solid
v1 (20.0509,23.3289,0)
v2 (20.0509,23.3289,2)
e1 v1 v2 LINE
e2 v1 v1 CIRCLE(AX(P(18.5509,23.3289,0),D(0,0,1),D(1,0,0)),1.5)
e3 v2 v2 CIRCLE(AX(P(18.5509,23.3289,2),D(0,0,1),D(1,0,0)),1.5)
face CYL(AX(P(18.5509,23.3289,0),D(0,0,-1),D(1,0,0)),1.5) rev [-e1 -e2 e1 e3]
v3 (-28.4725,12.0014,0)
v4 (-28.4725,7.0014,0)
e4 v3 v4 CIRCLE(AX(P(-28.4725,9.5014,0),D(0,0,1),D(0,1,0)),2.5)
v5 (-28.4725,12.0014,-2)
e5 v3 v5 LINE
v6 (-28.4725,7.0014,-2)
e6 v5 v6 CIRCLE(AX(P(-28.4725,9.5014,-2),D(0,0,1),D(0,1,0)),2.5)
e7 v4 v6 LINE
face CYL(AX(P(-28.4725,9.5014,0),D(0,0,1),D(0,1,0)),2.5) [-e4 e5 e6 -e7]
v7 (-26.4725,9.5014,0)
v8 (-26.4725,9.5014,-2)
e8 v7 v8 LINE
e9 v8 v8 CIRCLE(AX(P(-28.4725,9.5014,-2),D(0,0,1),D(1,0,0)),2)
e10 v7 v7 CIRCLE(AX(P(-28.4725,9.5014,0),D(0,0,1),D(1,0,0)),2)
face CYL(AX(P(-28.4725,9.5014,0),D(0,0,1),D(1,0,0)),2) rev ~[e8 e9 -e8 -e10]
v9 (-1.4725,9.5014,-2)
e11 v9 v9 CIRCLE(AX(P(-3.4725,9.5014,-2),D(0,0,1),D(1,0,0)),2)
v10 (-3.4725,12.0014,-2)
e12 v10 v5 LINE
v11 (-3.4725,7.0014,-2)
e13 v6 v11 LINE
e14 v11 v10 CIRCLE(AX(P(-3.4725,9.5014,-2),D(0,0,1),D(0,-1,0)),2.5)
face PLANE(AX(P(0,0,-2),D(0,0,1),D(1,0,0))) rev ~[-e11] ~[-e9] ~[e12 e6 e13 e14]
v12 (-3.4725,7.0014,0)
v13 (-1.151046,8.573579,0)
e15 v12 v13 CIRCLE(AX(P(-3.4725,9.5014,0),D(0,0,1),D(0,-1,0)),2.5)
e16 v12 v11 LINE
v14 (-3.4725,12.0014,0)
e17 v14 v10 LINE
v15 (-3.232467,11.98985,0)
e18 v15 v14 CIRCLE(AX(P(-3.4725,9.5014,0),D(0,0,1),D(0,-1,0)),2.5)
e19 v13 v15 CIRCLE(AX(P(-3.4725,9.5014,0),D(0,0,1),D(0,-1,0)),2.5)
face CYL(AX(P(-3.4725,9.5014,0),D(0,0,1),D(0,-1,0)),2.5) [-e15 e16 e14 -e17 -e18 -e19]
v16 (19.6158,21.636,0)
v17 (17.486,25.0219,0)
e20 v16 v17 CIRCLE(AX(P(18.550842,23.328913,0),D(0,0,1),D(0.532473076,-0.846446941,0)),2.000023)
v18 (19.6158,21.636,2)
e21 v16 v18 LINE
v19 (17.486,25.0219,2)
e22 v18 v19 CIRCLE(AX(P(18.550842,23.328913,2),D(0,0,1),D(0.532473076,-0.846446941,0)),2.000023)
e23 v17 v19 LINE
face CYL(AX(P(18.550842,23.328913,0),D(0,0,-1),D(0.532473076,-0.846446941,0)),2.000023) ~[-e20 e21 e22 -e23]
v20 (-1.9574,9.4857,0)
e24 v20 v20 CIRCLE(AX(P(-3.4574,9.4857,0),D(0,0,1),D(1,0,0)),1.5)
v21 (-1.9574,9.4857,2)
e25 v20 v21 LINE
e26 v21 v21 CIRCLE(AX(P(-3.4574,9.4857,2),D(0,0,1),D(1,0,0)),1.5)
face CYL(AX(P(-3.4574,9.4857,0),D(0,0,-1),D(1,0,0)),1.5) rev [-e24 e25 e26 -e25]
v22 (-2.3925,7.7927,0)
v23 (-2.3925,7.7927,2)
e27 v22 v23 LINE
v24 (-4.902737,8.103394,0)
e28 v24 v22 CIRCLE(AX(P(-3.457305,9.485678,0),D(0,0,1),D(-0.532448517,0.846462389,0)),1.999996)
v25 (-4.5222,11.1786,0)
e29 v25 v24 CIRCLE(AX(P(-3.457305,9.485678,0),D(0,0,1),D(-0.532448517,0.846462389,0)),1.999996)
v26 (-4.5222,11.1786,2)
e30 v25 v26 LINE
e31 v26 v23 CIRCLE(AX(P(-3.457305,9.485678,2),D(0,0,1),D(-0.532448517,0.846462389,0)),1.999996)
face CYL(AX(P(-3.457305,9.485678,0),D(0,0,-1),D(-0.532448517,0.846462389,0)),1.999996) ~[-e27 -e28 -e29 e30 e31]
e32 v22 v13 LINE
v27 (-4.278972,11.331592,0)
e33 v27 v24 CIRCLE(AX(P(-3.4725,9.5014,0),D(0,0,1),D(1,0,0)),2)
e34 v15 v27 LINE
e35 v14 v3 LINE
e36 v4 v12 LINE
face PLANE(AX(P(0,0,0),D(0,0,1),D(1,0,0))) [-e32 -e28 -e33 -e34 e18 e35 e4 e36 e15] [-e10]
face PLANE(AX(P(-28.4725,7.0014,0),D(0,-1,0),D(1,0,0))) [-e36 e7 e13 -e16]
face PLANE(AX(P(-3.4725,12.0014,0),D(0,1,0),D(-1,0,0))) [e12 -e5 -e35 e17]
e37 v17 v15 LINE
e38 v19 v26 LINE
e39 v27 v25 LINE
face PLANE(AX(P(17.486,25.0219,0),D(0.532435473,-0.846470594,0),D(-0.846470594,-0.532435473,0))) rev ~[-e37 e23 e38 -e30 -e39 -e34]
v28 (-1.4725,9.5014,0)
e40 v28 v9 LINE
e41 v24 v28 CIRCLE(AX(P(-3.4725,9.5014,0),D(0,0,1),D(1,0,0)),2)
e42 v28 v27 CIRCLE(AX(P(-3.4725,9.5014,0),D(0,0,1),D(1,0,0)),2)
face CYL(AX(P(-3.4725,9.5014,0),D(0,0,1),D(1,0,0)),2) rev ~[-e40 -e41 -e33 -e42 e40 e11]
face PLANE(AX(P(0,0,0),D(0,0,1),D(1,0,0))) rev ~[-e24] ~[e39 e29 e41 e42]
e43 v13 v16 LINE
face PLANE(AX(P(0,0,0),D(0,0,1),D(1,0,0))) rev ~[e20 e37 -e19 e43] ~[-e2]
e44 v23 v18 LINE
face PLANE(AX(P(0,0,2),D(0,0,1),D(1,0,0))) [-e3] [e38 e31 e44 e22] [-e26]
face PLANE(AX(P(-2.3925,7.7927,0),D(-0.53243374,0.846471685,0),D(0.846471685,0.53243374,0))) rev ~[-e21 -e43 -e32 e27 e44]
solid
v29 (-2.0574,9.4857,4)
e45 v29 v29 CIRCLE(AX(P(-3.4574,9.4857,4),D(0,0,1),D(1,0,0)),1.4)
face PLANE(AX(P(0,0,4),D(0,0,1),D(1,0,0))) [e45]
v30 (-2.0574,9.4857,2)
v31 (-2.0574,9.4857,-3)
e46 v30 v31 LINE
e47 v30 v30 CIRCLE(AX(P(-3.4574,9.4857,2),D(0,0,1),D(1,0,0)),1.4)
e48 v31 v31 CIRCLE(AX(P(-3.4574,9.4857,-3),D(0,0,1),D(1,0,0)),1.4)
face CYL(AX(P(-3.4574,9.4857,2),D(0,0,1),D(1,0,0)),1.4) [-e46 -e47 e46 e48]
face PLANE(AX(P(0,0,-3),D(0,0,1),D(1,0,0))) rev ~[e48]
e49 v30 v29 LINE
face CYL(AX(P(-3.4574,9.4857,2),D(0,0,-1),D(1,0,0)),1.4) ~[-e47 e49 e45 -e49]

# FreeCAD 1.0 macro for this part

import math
import FreeCAD as App
import Part
import Sketcher
from FreeCAD import Vector
Q = App.Units.Quantity

doc = App.newDocument("Part")
body = doc.addObject("PartDesign::Body", "Body")
body.AllowCompound = True

# Sketch on XY plane
sketch1 = body.newObject("Sketcher::SketchObject", "Sketch")
sketch1.AttachmentSupport = (doc.getObject("XY_Plane"), [""])
sketch1.MapMode = "FlatFace"
sketch1.addGeometry(Part.ArcOfCircle(Part.Circle(Vector(-28.4725, 9.5014, 0), Vector(0, 0, 1), 2.5), math.radians(90), math.radians(270)), False)
sketch1.addGeometry(Part.LineSegment(Vector(-28.4725, 7.0014, 0), Vector(-3.4725, 7.0014, 0)), False)
sketch1.addGeometry(Part.ArcOfCircle(Part.Circle(Vector(-3.4725, 9.5014, 0), Vector(0, 0, 1), 2.5), math.radians(-90), math.radians(90)), False)
sketch1.addGeometry(Part.LineSegment(Vector(-3.4725, 12.0014, 0), Vector(-28.4725, 12.0014, 0)), False)
sketch1.addGeometry(Part.Circle(Vector(-28.4725, 9.5014, 0), Vector(0, 0, 1), 2), False)
sketch1.addGeometry(Part.Circle(Vector(-3.4725, 9.5014, 0), Vector(0, 0, 1), 2), False)
sketch1.addConstraint(Sketcher.Constraint("Tangent", 0, 2, 1, 1))
sketch1.addConstraint(Sketcher.Constraint("Tangent", 1, 2, 2, 1))
sketch1.addConstraint(Sketcher.Constraint("Tangent", 2, 2, 3, 1))
sketch1.addConstraint(Sketcher.Constraint("Tangent", 3, 2, 0, 1))
sketch1.addConstraint(Sketcher.Constraint("Horizontal", 1))
sketch1.addConstraint(Sketcher.Constraint("Horizontal", 3))
sketch1.addConstraint(Sketcher.Constraint("Coincident", 4, 3, 0, 3))
sketch1.addConstraint(Sketcher.Constraint("Coincident", 5, 3, 2, 3))
sketch1.addConstraint(Sketcher.Constraint("Equal", 4, 5))
sketch1.addConstraint(Sketcher.Constraint("Diameter", 4, 4.0))
sketch1.addConstraint(Sketcher.Constraint("Radius", 0, 2.5))
sketch1.addConstraint(Sketcher.Constraint("DistanceX", 1, 1, 1, 2, 25.0))
sketch1.addConstraint(Sketcher.Constraint("DistanceX", 0, 3, -1, 1, 28.4725))
sketch1.addConstraint(Sketcher.Constraint("DistanceY", -1, 1, 0, 3, 9.5014))
pad1 = body.newObject("PartDesign::Pad", "Pad")
pad1.Profile = sketch1
pad1.Length = 2
pad1.Reversed = True

# Sketch on XY plane
sketch2 = body.newObject("Sketcher::SketchObject", "Sketch001")
sketch2.AttachmentSupport = (doc.getObject("XY_Plane"), [""])
sketch2.MapMode = "FlatFace"
sketch2.addGeometry(Part.ArcOfCircle(Part.Circle(Vector(-3.4574, 9.4857, 0), Vector(0, 0, 1), 1.999927), math.radians(122.169066), math.radians(302.169966)), False)
sketch2.addGeometry(Part.LineSegment(Vector(-2.3925, 7.7927, 0), Vector(19.6158, 21.636, 0)), False)
sketch2.addGeometry(Part.ArcOfCircle(Part.Circle(Vector(18.5509, 23.3289, 0), Vector(0, 0, 1), 1.999981), math.radians(-57.828509), math.radians(122.169966)), False)
sketch2.addGeometry(Part.LineSegment(Vector(17.486, 25.0219, 0), Vector(-4.5222, 11.1786, 0)), False)
sketch2.addGeometry(Part.Circle(Vector(-3.4574, 9.4857, 0), Vector(0, 0, 1), 1.5), False)
sketch2.addGeometry(Part.Circle(Vector(18.5509, 23.3289, 0), Vector(0, 0, 1), 1.5), False)
sketch2.addConstraint(Sketcher.Constraint("Tangent", 0, 2, 1, 1))
sketch2.addConstraint(Sketcher.Constraint("Tangent", 1, 2, 2, 1))
sketch2.addConstraint(Sketcher.Constraint("Tangent", 2, 2, 3, 1))
sketch2.addConstraint(Sketcher.Constraint("Tangent", 3, 2, 0, 1))
sketch2.addConstraint(Sketcher.Constraint("Coincident", 4, 3, 0, 3))
sketch2.addConstraint(Sketcher.Constraint("Coincident", 5, 3, 2, 3))
sketch2.addConstraint(Sketcher.Constraint("Equal", 0, 2))
sketch2.addConstraint(Sketcher.Constraint("Equal", 4, 5))
sketch2.addConstraint(Sketcher.Constraint("Diameter", 4, 3.0))
sketch2.addConstraint(Sketcher.Constraint("Radius", 0, 2.0))
sketch2.addConstraint(Sketcher.Constraint("Distance", 1, 26.0))
sketch2.addConstraint(Sketcher.Constraint("Angle", 1, Q("32.17 deg")))
sketch2.addConstraint(Sketcher.Constraint("DistanceX", -1, 1, 2, 3, 18.551))
sketch2.addConstraint(Sketcher.Constraint("DistanceY", -1, 1, 2, 3, 23.329))
pad2 = body.newObject("PartDesign::Pad", "Pad001")
pad2.Profile = sketch2
pad2.Length = 2

# Sketch on XY plane
sketch3 = body.newObject("Sketcher::SketchObject", "Sketch002")
sketch3.AttachmentSupport = (doc.getObject("XY_Plane"), [""])
sketch3.MapMode = "FlatFace"
sketch3.AttachmentOffset = App.Placement(Vector(0, 0, 2), App.Rotation())
sketch3.addGeometry(Part.Circle(Vector(-3.4574, 9.4857, 0), Vector(0, 0, 1), 1.4), False)
sketch3.addConstraint(Sketcher.Constraint("Diameter", 0, 2.8))
sketch3.addConstraint(Sketcher.Constraint("DistanceX", 0, 3, -1, 1, 3.4574))
sketch3.addConstraint(Sketcher.Constraint("DistanceY", -1, 1, 0, 3, 9.4857))
pad3 = body.newObject("PartDesign::Pad", "Pad002")
pad3.Profile = sketch3
pad3.Type = "TwoLengths"
pad3.Length = 2
pad3.Length2 = 5

doc.recompute()
